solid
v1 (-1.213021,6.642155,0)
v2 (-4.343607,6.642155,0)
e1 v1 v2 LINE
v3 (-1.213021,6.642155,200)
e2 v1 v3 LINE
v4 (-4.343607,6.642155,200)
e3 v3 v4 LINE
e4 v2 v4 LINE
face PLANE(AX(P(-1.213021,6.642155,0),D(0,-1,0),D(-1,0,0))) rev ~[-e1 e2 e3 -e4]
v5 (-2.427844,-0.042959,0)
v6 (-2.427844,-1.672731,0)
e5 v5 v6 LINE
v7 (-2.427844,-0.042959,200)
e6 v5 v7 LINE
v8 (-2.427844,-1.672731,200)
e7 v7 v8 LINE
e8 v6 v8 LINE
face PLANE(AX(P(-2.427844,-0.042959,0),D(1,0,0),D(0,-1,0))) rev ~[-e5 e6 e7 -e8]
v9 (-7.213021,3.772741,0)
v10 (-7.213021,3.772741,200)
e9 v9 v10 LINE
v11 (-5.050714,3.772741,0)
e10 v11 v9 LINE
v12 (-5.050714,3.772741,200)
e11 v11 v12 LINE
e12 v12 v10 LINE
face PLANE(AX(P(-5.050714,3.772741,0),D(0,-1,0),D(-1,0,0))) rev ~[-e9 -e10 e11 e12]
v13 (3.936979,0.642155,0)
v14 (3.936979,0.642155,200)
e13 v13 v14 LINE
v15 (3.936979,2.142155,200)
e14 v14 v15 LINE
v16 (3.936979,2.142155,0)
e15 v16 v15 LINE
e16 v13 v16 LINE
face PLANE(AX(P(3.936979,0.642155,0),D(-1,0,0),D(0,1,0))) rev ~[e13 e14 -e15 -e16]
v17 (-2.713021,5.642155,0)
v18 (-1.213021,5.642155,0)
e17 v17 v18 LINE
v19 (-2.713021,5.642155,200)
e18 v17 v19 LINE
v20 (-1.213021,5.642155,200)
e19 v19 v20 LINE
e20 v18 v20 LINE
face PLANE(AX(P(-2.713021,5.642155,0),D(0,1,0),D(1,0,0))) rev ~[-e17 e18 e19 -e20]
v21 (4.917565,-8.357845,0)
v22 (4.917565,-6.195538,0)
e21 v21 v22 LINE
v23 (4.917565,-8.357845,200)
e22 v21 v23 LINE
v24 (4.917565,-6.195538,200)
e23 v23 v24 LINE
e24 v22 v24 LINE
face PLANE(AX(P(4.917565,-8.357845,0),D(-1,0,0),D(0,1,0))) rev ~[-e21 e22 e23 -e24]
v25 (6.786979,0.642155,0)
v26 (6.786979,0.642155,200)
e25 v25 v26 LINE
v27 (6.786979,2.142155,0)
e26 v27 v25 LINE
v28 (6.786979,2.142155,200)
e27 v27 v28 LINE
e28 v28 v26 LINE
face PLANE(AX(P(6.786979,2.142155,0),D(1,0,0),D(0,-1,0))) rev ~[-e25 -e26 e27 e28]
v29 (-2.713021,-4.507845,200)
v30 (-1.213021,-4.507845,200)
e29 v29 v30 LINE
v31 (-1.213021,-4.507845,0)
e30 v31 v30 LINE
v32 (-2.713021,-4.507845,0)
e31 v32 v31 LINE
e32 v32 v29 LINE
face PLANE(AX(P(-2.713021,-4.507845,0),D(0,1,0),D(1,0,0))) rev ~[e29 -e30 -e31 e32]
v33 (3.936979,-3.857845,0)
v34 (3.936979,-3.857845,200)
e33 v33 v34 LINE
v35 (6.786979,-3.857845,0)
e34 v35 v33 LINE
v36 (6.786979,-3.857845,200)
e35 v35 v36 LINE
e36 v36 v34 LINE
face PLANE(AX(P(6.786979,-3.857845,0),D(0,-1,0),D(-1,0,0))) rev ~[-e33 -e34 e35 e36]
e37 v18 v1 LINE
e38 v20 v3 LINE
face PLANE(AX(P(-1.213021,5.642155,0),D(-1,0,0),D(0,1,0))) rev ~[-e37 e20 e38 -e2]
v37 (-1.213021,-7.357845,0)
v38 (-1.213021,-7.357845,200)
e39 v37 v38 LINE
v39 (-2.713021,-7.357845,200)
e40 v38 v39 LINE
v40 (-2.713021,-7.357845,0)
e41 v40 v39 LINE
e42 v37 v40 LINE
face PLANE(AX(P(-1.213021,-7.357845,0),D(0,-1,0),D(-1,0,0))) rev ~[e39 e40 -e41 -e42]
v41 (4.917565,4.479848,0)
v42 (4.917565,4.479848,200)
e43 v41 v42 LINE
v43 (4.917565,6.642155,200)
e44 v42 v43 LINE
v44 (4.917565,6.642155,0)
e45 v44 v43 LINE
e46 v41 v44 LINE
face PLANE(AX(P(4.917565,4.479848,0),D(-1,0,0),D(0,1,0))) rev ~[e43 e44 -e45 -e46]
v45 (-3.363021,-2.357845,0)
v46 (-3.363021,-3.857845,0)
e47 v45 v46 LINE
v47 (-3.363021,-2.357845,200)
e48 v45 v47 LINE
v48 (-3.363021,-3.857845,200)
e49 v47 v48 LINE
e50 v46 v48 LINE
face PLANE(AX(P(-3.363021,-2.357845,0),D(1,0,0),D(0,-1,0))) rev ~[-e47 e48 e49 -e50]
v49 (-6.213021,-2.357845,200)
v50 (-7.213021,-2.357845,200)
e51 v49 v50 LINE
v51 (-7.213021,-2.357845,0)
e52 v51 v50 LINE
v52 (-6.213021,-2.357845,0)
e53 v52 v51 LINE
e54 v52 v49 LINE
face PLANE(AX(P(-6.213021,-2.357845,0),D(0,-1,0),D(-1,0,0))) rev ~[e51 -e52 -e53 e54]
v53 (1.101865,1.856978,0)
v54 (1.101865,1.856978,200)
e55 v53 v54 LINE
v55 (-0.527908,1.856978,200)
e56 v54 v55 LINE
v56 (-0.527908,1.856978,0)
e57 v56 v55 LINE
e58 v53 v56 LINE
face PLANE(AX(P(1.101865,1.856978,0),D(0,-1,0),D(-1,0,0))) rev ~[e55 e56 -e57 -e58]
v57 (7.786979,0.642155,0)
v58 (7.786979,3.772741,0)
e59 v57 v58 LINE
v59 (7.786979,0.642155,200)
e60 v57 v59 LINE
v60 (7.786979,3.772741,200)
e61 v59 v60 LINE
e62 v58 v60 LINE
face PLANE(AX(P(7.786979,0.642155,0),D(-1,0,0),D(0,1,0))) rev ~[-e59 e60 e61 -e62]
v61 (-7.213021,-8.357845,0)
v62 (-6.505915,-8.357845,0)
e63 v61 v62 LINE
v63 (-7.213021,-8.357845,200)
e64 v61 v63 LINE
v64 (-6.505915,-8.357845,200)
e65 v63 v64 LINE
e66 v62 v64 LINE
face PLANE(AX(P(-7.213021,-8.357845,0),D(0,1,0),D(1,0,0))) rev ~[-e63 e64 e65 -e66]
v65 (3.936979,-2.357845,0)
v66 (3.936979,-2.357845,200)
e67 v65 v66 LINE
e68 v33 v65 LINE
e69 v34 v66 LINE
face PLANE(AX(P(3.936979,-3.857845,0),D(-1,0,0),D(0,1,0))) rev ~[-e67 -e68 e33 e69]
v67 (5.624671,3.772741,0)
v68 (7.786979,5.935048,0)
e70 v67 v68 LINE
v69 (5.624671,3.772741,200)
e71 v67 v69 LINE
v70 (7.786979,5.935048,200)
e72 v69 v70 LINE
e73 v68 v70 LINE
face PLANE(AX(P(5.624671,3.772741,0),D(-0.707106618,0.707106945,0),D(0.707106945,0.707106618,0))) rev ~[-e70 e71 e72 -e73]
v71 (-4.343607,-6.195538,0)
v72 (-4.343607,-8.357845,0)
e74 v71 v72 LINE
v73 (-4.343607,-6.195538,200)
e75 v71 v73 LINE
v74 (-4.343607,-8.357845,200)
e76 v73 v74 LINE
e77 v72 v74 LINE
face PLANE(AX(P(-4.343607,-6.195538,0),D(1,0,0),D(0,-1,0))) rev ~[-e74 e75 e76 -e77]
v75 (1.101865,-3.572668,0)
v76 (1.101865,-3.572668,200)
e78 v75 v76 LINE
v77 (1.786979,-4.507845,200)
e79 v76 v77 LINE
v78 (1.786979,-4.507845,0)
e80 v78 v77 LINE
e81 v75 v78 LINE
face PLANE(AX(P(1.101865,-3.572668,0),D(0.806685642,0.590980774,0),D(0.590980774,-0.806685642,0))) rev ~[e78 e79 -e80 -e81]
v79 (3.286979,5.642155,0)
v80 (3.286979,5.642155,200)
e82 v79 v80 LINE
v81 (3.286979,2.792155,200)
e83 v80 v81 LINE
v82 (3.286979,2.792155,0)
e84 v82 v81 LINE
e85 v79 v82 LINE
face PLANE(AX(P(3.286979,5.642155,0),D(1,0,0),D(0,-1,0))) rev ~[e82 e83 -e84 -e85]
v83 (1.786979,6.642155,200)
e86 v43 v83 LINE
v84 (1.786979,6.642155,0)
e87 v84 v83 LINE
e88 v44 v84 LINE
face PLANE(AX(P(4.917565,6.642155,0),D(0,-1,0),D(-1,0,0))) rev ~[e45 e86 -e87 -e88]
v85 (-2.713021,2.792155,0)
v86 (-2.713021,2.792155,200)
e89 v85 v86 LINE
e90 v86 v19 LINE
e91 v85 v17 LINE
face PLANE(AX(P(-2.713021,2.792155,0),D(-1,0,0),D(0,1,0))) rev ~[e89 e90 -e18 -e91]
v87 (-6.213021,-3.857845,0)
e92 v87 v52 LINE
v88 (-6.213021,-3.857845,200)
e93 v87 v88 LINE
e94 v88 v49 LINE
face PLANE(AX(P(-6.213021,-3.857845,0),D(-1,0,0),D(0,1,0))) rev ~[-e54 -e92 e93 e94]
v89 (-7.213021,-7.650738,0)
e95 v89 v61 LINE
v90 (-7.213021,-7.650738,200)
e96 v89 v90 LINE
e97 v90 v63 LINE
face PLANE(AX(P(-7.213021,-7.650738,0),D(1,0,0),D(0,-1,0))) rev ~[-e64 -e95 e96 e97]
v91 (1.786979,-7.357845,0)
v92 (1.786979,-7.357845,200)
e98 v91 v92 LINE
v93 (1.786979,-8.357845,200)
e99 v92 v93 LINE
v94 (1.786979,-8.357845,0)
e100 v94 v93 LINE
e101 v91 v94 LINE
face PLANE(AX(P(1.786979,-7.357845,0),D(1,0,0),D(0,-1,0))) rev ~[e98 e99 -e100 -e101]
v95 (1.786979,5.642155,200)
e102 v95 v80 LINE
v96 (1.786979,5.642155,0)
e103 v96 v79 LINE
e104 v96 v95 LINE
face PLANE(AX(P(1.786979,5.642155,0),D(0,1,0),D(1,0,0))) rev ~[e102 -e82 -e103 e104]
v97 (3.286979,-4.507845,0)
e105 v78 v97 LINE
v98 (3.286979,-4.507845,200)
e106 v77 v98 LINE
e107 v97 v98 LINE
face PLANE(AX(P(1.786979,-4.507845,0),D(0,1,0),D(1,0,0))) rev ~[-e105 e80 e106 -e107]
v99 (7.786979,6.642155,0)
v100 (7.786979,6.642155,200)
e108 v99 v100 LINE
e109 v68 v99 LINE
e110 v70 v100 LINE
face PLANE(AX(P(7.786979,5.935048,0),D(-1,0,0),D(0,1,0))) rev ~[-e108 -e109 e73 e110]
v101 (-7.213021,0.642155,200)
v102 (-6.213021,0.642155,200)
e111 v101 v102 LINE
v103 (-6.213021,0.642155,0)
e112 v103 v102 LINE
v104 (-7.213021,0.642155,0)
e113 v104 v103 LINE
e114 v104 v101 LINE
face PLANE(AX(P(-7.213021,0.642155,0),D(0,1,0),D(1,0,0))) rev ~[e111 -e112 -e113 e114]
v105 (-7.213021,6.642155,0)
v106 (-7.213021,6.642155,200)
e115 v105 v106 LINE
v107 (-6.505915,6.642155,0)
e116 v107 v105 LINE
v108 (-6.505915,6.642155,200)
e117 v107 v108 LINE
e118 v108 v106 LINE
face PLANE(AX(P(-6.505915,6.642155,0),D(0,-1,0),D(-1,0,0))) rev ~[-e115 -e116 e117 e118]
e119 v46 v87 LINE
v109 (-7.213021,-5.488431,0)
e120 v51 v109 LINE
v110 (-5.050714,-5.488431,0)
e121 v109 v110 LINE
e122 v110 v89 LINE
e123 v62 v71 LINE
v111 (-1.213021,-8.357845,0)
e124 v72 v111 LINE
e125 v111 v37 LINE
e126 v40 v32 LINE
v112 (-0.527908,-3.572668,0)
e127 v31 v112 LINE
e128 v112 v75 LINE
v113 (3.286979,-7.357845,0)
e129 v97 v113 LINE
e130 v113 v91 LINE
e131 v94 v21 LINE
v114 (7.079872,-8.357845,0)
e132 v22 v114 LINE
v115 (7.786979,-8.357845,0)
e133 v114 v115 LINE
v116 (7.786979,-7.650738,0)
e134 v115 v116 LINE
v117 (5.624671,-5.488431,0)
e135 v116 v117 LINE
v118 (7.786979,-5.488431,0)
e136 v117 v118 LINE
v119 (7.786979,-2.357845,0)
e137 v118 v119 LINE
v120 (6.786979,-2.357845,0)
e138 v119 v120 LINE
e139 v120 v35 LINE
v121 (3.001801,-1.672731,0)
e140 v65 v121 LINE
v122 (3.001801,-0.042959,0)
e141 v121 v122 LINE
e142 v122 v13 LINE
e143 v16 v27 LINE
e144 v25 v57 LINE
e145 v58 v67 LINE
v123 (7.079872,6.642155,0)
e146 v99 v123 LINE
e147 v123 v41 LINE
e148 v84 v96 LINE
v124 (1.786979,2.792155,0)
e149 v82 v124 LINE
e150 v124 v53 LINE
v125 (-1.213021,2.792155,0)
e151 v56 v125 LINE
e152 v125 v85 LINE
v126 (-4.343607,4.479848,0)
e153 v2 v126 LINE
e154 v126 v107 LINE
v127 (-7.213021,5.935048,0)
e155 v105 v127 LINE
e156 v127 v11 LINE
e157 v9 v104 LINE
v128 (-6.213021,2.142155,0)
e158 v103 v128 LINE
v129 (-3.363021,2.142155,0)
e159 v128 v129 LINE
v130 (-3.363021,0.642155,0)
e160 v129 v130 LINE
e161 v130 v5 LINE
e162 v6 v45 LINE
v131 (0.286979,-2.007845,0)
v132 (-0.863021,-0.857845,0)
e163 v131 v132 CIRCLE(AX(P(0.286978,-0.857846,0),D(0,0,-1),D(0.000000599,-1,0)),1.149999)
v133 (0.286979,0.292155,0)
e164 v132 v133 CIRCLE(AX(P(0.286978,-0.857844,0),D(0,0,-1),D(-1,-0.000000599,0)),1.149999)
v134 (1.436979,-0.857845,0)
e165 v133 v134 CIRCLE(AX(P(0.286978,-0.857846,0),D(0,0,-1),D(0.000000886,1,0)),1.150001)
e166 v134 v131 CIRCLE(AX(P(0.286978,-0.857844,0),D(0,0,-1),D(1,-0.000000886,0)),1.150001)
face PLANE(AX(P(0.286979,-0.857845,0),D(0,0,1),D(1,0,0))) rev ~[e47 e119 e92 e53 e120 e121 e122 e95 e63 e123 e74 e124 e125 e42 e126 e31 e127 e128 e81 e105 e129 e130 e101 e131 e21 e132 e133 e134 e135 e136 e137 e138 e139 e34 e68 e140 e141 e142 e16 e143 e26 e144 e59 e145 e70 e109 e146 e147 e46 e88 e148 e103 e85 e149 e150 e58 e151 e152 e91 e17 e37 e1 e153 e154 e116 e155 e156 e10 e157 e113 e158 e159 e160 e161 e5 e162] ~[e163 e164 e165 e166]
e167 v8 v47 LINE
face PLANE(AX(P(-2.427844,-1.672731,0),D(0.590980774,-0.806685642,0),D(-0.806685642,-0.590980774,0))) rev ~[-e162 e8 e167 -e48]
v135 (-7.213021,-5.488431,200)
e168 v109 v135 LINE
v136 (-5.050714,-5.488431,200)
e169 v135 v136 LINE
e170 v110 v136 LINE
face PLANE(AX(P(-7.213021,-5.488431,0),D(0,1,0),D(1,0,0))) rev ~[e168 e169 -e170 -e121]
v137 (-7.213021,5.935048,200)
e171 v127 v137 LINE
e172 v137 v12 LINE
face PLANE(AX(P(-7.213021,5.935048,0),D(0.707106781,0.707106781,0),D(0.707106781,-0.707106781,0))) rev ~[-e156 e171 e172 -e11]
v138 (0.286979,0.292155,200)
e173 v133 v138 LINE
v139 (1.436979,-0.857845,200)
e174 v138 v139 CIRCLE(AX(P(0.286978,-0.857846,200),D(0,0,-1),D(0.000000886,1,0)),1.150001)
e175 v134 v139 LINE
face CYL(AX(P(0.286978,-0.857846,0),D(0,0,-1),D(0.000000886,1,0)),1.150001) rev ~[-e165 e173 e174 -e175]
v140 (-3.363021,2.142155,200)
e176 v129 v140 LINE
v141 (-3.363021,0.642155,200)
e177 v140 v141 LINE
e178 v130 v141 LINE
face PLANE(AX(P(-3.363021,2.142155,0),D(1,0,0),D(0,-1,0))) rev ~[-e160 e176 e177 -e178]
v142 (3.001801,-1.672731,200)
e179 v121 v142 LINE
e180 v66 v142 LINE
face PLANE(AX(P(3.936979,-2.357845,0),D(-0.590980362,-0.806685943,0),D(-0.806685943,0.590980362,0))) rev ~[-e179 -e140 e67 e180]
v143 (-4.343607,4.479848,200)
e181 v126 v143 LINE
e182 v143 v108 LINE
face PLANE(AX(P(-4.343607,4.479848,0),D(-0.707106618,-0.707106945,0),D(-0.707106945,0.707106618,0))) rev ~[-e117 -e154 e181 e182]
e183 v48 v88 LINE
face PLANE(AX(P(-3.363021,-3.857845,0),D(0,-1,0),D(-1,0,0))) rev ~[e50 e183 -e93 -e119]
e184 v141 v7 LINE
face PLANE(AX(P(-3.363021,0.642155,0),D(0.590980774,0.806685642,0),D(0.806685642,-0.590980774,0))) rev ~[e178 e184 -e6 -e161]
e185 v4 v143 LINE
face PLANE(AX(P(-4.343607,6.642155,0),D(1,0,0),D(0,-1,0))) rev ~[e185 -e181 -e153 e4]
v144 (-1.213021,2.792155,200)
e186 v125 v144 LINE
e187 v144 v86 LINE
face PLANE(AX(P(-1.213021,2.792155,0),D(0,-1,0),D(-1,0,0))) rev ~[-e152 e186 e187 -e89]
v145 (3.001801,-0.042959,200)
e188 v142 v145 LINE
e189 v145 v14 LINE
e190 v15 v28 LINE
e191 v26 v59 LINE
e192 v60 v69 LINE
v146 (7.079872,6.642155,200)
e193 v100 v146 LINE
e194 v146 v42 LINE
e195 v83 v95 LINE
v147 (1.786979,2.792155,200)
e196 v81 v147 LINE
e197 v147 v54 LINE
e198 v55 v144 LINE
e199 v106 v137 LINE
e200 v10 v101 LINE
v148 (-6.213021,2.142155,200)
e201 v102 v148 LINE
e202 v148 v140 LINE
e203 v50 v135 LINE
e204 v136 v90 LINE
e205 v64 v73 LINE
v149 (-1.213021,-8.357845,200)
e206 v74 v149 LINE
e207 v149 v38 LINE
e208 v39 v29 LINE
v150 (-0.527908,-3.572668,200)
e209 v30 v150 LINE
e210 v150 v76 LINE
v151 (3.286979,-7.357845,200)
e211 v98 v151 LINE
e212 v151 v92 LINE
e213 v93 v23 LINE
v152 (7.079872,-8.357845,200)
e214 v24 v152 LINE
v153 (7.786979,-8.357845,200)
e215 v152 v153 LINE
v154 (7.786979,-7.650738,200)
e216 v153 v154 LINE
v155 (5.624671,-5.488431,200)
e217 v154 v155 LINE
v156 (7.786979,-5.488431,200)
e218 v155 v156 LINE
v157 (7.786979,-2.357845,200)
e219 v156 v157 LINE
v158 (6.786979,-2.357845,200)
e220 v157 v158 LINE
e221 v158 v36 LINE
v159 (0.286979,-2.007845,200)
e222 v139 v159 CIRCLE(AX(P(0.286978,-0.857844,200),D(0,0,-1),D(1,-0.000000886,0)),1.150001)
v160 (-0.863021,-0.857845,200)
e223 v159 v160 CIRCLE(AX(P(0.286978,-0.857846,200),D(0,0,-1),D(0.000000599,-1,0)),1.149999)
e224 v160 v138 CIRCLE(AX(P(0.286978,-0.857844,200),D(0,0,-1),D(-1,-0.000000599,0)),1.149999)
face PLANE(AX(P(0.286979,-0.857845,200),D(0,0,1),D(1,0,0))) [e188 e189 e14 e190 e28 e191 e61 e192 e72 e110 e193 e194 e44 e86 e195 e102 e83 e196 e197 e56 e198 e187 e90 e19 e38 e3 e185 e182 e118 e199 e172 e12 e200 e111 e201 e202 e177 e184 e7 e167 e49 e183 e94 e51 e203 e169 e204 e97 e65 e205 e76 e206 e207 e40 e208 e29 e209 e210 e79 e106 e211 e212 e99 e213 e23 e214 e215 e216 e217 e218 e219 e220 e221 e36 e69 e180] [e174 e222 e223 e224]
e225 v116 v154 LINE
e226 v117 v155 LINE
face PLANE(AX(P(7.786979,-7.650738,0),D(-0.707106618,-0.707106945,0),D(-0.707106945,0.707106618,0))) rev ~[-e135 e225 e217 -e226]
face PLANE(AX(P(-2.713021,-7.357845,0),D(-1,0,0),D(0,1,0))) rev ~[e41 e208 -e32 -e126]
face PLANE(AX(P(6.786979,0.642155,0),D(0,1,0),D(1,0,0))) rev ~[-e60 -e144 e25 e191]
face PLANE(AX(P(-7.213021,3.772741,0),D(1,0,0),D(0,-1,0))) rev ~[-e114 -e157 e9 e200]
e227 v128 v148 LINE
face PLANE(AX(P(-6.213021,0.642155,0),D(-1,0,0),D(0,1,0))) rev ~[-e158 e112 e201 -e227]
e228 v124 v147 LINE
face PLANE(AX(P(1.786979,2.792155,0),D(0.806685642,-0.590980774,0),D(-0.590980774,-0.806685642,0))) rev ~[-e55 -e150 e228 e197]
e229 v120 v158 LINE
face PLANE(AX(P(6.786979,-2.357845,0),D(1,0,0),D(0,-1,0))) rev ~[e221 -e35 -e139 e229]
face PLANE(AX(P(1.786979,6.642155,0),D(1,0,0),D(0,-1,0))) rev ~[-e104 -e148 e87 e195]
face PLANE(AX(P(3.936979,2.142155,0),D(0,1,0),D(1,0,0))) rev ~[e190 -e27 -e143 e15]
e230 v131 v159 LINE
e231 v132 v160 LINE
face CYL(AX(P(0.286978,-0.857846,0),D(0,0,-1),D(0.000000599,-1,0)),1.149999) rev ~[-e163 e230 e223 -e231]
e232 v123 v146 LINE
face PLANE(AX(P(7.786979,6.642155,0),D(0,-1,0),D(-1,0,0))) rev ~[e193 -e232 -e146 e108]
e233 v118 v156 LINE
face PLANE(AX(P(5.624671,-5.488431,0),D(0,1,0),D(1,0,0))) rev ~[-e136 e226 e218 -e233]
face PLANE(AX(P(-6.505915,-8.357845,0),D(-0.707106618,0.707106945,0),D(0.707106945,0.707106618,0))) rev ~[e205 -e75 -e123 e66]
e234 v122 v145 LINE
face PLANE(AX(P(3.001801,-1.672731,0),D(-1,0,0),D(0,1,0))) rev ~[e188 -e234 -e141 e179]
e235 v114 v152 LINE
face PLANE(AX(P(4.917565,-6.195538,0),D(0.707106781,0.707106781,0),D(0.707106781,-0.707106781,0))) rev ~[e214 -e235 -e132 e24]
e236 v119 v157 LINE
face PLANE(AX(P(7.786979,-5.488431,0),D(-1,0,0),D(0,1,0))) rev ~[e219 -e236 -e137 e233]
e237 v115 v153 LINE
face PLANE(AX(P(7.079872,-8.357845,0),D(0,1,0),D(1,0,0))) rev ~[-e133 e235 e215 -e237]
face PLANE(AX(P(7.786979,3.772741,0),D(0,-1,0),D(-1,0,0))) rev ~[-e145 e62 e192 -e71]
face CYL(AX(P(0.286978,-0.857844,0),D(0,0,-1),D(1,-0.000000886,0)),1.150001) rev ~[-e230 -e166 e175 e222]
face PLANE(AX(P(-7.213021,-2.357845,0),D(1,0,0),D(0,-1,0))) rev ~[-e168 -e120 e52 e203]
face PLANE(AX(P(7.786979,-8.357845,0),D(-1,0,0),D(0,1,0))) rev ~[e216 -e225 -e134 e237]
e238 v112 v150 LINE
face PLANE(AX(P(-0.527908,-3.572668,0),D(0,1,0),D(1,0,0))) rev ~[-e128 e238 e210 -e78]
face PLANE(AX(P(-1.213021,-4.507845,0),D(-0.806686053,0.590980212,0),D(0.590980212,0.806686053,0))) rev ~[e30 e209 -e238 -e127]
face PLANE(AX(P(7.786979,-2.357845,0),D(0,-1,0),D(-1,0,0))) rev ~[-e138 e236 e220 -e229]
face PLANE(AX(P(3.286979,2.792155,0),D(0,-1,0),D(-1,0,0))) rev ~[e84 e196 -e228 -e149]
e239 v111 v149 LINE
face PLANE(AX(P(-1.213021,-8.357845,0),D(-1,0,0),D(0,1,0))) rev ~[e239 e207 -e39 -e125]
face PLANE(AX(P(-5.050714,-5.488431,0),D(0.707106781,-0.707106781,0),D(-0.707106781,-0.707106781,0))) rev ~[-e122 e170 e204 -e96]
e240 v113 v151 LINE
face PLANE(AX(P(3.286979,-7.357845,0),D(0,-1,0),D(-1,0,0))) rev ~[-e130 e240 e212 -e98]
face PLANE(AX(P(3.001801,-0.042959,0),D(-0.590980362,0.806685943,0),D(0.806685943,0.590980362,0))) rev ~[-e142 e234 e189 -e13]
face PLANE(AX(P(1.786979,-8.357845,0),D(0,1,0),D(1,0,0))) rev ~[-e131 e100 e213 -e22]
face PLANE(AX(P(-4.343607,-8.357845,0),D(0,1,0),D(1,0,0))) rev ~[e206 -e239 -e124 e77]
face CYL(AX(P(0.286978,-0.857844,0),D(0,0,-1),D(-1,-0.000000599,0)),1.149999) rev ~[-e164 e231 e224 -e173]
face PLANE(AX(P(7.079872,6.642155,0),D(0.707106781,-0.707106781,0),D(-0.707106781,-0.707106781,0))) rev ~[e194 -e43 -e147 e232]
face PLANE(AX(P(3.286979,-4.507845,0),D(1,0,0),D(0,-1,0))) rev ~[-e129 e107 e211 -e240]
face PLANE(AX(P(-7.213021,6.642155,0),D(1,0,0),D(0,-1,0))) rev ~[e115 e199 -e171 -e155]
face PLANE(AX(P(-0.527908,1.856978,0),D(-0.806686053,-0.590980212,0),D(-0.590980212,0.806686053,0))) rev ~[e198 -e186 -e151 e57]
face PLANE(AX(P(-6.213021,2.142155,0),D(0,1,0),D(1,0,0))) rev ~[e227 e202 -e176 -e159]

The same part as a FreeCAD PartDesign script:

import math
import FreeCAD as App
import Part
import Sketcher

V = App.Vector

doc = App.newDocument("Part")
params = doc.addObject("Spreadsheet::Sheet", "Params")
for row, (alias, value) in enumerate([
    ("sketch1_width", "1 mm"),
    ("sketch1_radius", "1.149999 mm"),
    ("sketch1_width2", "1.5 mm"),
    ("sketch1_width3", "2.85 mm"),
    ("pad1_length", "200 mm"),
], start=1):
    params.set(f"A{row}", alias)
    params.set(f"B{row}", "=" + value)
    params.setAlias(f"B{row}", alias)

body = doc.addObject("PartDesign::Body", "Body")

# Sketch on XY plane
sketch1 = body.newObject("Sketcher::SketchObject", "Sketch")
sketch1.AttachmentSupport = (doc.getObject("XY_Plane"), [""])
sketch1.MapMode = "FlatFace"
sketch1.addGeometry(Part.LineSegment(V(-7.213021, 3.772741, 0), V(-7.213021, 0.642155, 0)), False)
sketch1.addGeometry(Part.LineSegment(V(-7.213021, 0.642155, 0), V(-6.213021, 0.642155, 0)), False)
sketch1.addGeometry(Part.LineSegment(V(-6.213021, 0.642155, 0), V(-6.213021, 2.142155, 0)), False)
sketch1.addGeometry(Part.LineSegment(V(-6.213021, 2.142155, 0), V(-3.363021, 2.142155, 0)), False)
sketch1.addGeometry(Part.LineSegment(V(-3.363021, 2.142155, 0), V(-3.363021, 0.642155, 0)), False)
sketch1.addGeometry(Part.LineSegment(V(-3.363021, 0.642155, 0), V(-2.427844, -0.042959, 0)), False)
sketch1.addGeometry(Part.LineSegment(V(-2.427844, -0.042959, 0), V(-2.427844, -1.672731, 0)), False)
sketch1.addGeometry(Part.LineSegment(V(-2.427844, -1.672731, 0), V(-3.363021, -2.357845, 0)), False)
sketch1.addGeometry(Part.LineSegment(V(-3.363021, -2.357845, 0), V(-3.363021, -3.857845, 0)), False)
sketch1.addGeometry(Part.LineSegment(V(-3.363021, -3.857845, 0), V(-6.213021, -3.857845, 0)), False)
sketch1.addGeometry(Part.LineSegment(V(-6.213021, -3.857845, 0), V(-6.213021, -2.357845, 0)), False)
sketch1.addGeometry(Part.LineSegment(V(-6.213021, -2.357845, 0), V(-7.213021, -2.357845, 0)), False)
sketch1.addGeometry(Part.LineSegment(V(-7.213021, -2.357845, 0), V(-7.213021, -5.488431, 0)), False)
sketch1.addGeometry(Part.LineSegment(V(-7.213021, -5.488431, 0), V(-5.050714, -5.488431, 0)), False)
sketch1.addGeometry(Part.LineSegment(V(-5.050714, -5.488431, 0), V(-7.213021, -7.650738, 0)), False)
sketch1.addGeometry(Part.LineSegment(V(-7.213021, -7.650738, 0), V(-7.213021, -8.357845, 0)), False)
sketch1.addGeometry(Part.LineSegment(V(-7.213021, -8.357845, 0), V(-6.505915, -8.357845, 0)), False)
sketch1.addGeometry(Part.LineSegment(V(-6.505915, -8.357845, 0), V(-4.343607, -6.195538, 0)), False)
sketch1.addGeometry(Part.LineSegment(V(-4.343607, -6.195538, 0), V(-4.343607, -8.357845, 0)), False)
sketch1.addGeometry(Part.LineSegment(V(-4.343607, -8.357845, 0), V(-1.213021, -8.357845, 0)), False)
sketch1.addGeometry(Part.LineSegment(V(-1.213021, -8.357845, 0), V(-1.213021, -7.357845, 0)), False)
sketch1.addGeometry(Part.LineSegment(V(-1.213021, -7.357845, 0), V(-2.713021, -7.357845, 0)), False)
sketch1.addGeometry(Part.LineSegment(V(-2.713021, -7.357845, 0), V(-2.713021, -4.507845, 0)), False)
sketch1.addGeometry(Part.LineSegment(V(-2.713021, -4.507845, 0), V(-1.213021, -4.507845, 0)), False)
sketch1.addGeometry(Part.LineSegment(V(-1.213021, -4.507845, 0), V(-0.527908, -3.572668, 0)), False)
sketch1.addGeometry(Part.LineSegment(V(-0.527908, -3.572668, 0), V(1.101865, -3.572668, 0)), False)
sketch1.addGeometry(Part.LineSegment(V(1.101865, -3.572668, 0), V(1.786979, -4.507845, 0)), False)
sketch1.addGeometry(Part.LineSegment(V(1.786979, -4.507845, 0), V(3.286979, -4.507845, 0)), False)
sketch1.addGeometry(Part.LineSegment(V(3.286979, -4.507845, 0), V(3.286979, -7.357845, 0)), False)
sketch1.addGeometry(Part.LineSegment(V(3.286979, -7.357845, 0), V(1.786979, -7.357845, 0)), False)
sketch1.addGeometry(Part.LineSegment(V(1.786979, -7.357845, 0), V(1.786979, -8.357845, 0)), False)
sketch1.addGeometry(Part.LineSegment(V(1.786979, -8.357845, 0), V(4.917565, -8.357845, 0)), False)
sketch1.addGeometry(Part.LineSegment(V(4.917565, -8.357845, 0), V(4.917565, -6.195538, 0)), False)
sketch1.addGeometry(Part.LineSegment(V(4.917565, -6.195538, 0), V(7.079872, -8.357845, 0)), False)
sketch1.addGeometry(Part.LineSegment(V(7.079872, -8.357845, 0), V(7.786979, -8.357845, 0)), False)
sketch1.addGeometry(Part.LineSegment(V(7.786979, -8.357845, 0), V(7.786979, -7.650738, 0)), False)
sketch1.addGeometry(Part.LineSegment(V(7.786979, -7.650738, 0), V(5.624671, -5.488431, 0)), False)
sketch1.addGeometry(Part.LineSegment(V(5.624671, -5.488431, 0), V(7.786979, -5.488431, 0)), False)
sketch1.addGeometry(Part.LineSegment(V(7.786979, -5.488431, 0), V(7.786979, -2.357845, 0)), False)
sketch1.addGeometry(Part.LineSegment(V(7.786979, -2.357845, 0), V(6.786979, -2.357845, 0)), False)
sketch1.addGeometry(Part.LineSegment(V(6.786979, -2.357845, 0), V(6.786979, -3.857845, 0)), False)
sketch1.addGeometry(Part.LineSegment(V(6.786979, -3.857845, 0), V(3.936979, -3.857845, 0)), False)
sketch1.addGeometry(Part.LineSegment(V(3.936979, -3.857845, 0), V(3.936979, -2.357845, 0)), False)
sketch1.addGeometry(Part.LineSegment(V(3.936979, -2.357845, 0), V(3.001801, -1.672731, 0)), False)
sketch1.addGeometry(Part.LineSegment(V(3.001801, -1.672731, 0), V(3.001801, -0.042959, 0)), False)
sketch1.addGeometry(Part.LineSegment(V(3.001801, -0.042959, 0), V(3.936979, 0.642155, 0)), False)
sketch1.addGeometry(Part.LineSegment(V(3.936979, 0.642155, 0), V(3.936979, 2.142155, 0)), False)
sketch1.addGeometry(Part.LineSegment(V(3.936979, 2.142155, 0), V(6.786979, 2.142155, 0)), False)
sketch1.addGeometry(Part.LineSegment(V(6.786979, 2.142155, 0), V(6.786979, 0.642155, 0)), False)
sketch1.addGeometry(Part.LineSegment(V(6.786979, 0.642155, 0), V(7.786979, 0.642155, 0)), False)
sketch1.addGeometry(Part.LineSegment(V(7.786979, 0.642155, 0), V(7.786979, 3.772741, 0)), False)
sketch1.addGeometry(Part.LineSegment(V(7.786979, 3.772741, 0), V(5.624671, 3.772741, 0)), False)
sketch1.addGeometry(Part.LineSegment(V(5.624671, 3.772741, 0), V(7.786979, 5.935048, 0)), False)
sketch1.addGeometry(Part.LineSegment(V(7.786979, 5.935048, 0), V(7.786979, 6.642155, 0)), False)
sketch1.addGeometry(Part.LineSegment(V(7.786979, 6.642155, 0), V(7.079872, 6.642155, 0)), False)
sketch1.addGeometry(Part.LineSegment(V(7.079872, 6.642155, 0), V(4.917565, 4.479848, 0)), False)
sketch1.addGeometry(Part.LineSegment(V(4.917565, 4.479848, 0), V(4.917565, 6.642155, 0)), False)
sketch1.addGeometry(Part.LineSegment(V(4.917565, 6.642155, 0), V(1.786979, 6.642155, 0)), False)
sketch1.addGeometry(Part.LineSegment(V(1.786979, 6.642155, 0), V(1.786979, 5.642155, 0)), False)
sketch1.addGeometry(Part.LineSegment(V(1.786979, 5.642155, 0), V(3.286979, 5.642155, 0)), False)
sketch1.addGeometry(Part.LineSegment(V(3.286979, 5.642155, 0), V(3.286979, 2.792155, 0)), False)
sketch1.addGeometry(Part.LineSegment(V(3.286979, 2.792155, 0), V(1.786979, 2.792155, 0)), False)
sketch1.addGeometry(Part.LineSegment(V(1.786979, 2.792155, 0), V(1.101865, 1.856978, 0)), False)
sketch1.addGeometry(Part.LineSegment(V(1.101865, 1.856978, 0), V(-0.527908, 1.856978, 0)), False)
sketch1.addGeometry(Part.LineSegment(V(-0.527908, 1.856978, 0), V(-1.213021, 2.792155, 0)), False)
sketch1.addGeometry(Part.LineSegment(V(-1.213021, 2.792155, 0), V(-2.713021, 2.792155, 0)), False)
sketch1.addGeometry(Part.LineSegment(V(-2.713021, 2.792155, 0), V(-2.713021, 5.642155, 0)), False)
sketch1.addGeometry(Part.LineSegment(V(-2.713021, 5.642155, 0), V(-1.213021, 5.642155, 0)), False)
sketch1.addGeometry(Part.LineSegment(V(-1.213021, 5.642155, 0), V(-1.213021, 6.642155, 0)), False)
sketch1.addGeometry(Part.LineSegment(V(-1.213021, 6.642155, 0), V(-4.343607, 6.642155, 0)), False)
sketch1.addGeometry(Part.LineSegment(V(-4.343607, 6.642155, 0), V(-4.343607, 4.479848, 0)), False)
sketch1.addGeometry(Part.LineSegment(V(-4.343607, 4.479848, 0), V(-6.505915, 6.642155, 0)), False)
sketch1.addGeometry(Part.LineSegment(V(-6.505915, 6.642155, 0), V(-7.213021, 6.642155, 0)), False)
sketch1.addGeometry(Part.LineSegment(V(-7.213021, 6.642155, 0), V(-7.213021, 5.935048, 0)), False)
sketch1.addGeometry(Part.LineSegment(V(-7.213021, 5.935048, 0), V(-5.050714, 3.772741, 0)), False)
sketch1.addGeometry(Part.LineSegment(V(-5.050714, 3.772741, 0), V(-7.213021, 3.772741, 0)), False)
sketch1.addGeometry(Part.ArcOfCircle(Part.Circle(V(0.286978, -0.857846, 0), V(0, 0, 1), 1.149999), math.radians(179.999966), math.radians(270.000034)), False)
sketch1.addGeometry(Part.ArcOfCircle(Part.Circle(V(0.286978, -0.857844, 0), V(0, 0, 1), 1.149999), math.radians(89.999966), math.radians(180.000034)), False)
sketch1.addGeometry(Part.ArcOfCircle(Part.Circle(V(0.286978, -0.857846, 0), V(0, 0, 1), 1.150001), math.radians(0.000051), math.radians(89.999949)), False)
sketch1.addGeometry(Part.ArcOfCircle(Part.Circle(V(0.286978, -0.857844, 0), V(0, 0, 1), 1.150001), math.radians(-89.999949), math.radians(-0.000051)), False)
sketch1.addConstraint(Sketcher.Constraint("Coincident", 0, 2, 1, 1))
sketch1.addConstraint(Sketcher.Constraint("Coincident", 1, 2, 2, 1))
sketch1.addConstraint(Sketcher.Constraint("Coincident", 2, 2, 3, 1))
sketch1.addConstraint(Sketcher.Constraint("Coincident", 3, 2, 4, 1))
sketch1.addConstraint(Sketcher.Constraint("Coincident", 4, 2, 5, 1))
sketch1.addConstraint(Sketcher.Constraint("Coincident", 5, 2, 6, 1))
sketch1.addConstraint(Sketcher.Constraint("Coincident", 6, 2, 7, 1))
sketch1.addConstraint(Sketcher.Constraint("Coincident", 7, 2, 8, 1))
sketch1.addConstraint(Sketcher.Constraint("Coincident", 8, 2, 9, 1))
sketch1.addConstraint(Sketcher.Constraint("Coincident", 9, 2, 10, 1))
sketch1.addConstraint(Sketcher.Constraint("Coincident", 10, 2, 11, 1))
sketch1.addConstraint(Sketcher.Constraint("Coincident", 11, 2, 12, 1))
sketch1.addConstraint(Sketcher.Constraint("Coincident", 12, 2, 13, 1))
sketch1.addConstraint(Sketcher.Constraint("Coincident", 13, 2, 14, 1))
sketch1.addConstraint(Sketcher.Constraint("Coincident", 14, 2, 15, 1))
sketch1.addConstraint(Sketcher.Constraint("Coincident", 15, 2, 16, 1))
sketch1.addConstraint(Sketcher.Constraint("Coincident", 16, 2, 17, 1))
sketch1.addConstraint(Sketcher.Constraint("Coincident", 17, 2, 18, 1))
sketch1.addConstraint(Sketcher.Constraint("Coincident", 18, 2, 19, 1))
sketch1.addConstraint(Sketcher.Constraint("Coincident", 19, 2, 20, 1))
sketch1.addConstraint(Sketcher.Constraint("Coincident", 20, 2, 21, 1))
sketch1.addConstraint(Sketcher.Constraint("Coincident", 21, 2, 22, 1))
sketch1.addConstraint(Sketcher.Constraint("Coincident", 22, 2, 23, 1))
sketch1.addConstraint(Sketcher.Constraint("Coincident", 23, 2, 24, 1))
sketch1.addConstraint(Sketcher.Constraint("Coincident", 24, 2, 25, 1))
sketch1.addConstraint(Sketcher.Constraint("Coincident", 25, 2, 26, 1))
sketch1.addConstraint(Sketcher.Constraint("Coincident", 26, 2, 27, 1))
sketch1.addConstraint(Sketcher.Constraint("Coincident", 27, 2, 28, 1))
sketch1.addConstraint(Sketcher.Constraint("Coincident", 28, 2, 29, 1))
sketch1.addConstraint(Sketcher.Constraint("Coincident", 29, 2, 30, 1))
sketch1.addConstraint(Sketcher.Constraint("Coincident", 30, 2, 31, 1))
sketch1.addConstraint(Sketcher.Constraint("Coincident", 31, 2, 32, 1))
sketch1.addConstraint(Sketcher.Constraint("Coincident", 32, 2, 33, 1))
sketch1.addConstraint(Sketcher.Constraint("Coincident", 33, 2, 34, 1))
sketch1.addConstraint(Sketcher.Constraint("Coincident", 34, 2, 35, 1))
sketch1.addConstraint(Sketcher.Constraint("Coincident", 35, 2, 36, 1))
sketch1.addConstraint(Sketcher.Constraint("Coincident", 36, 2, 37, 1))
sketch1.addConstraint(Sketcher.Constraint("Coincident", 37, 2, 38, 1))
sketch1.addConstraint(Sketcher.Constraint("Coincident", 38, 2, 39, 1))
sketch1.addConstraint(Sketcher.Constraint("Coincident", 39, 2, 40, 1))
sketch1.addConstraint(Sketcher.Constraint("Coincident", 40, 2, 41, 1))
sketch1.addConstraint(Sketcher.Constraint("Coincident", 41, 2, 42, 1))
sketch1.addConstraint(Sketcher.Constraint("Coincident", 42, 2, 43, 1))
sketch1.addConstraint(Sketcher.Constraint("Coincident", 43, 2, 44, 1))
sketch1.addConstraint(Sketcher.Constraint("Coincident", 44, 2, 45, 1))
sketch1.addConstraint(Sketcher.Constraint("Coincident", 45, 2, 46, 1))
sketch1.addConstraint(Sketcher.Constraint("Coincident", 46, 2, 47, 1))
sketch1.addConstraint(Sketcher.Constraint("Coincident", 47, 2, 48, 1))
sketch1.addConstraint(Sketcher.Constraint("Coincident", 48, 2, 49, 1))
sketch1.addConstraint(Sketcher.Constraint("Coincident", 49, 2, 50, 1))
sketch1.addConstraint(Sketcher.Constraint("Coincident", 50, 2, 51, 1))
sketch1.addConstraint(Sketcher.Constraint("Coincident", 51, 2, 52, 1))
sketch1.addConstraint(Sketcher.Constraint("Coincident", 52, 2, 53, 1))
sketch1.addConstraint(Sketcher.Constraint("Coincident", 53, 2, 54, 1))
sketch1.addConstraint(Sketcher.Constraint("Coincident", 54, 2, 55, 1))
sketch1.addConstraint(Sketcher.Constraint("Coincident", 55, 2, 56, 1))
sketch1.addConstraint(Sketcher.Constraint("Coincident", 56, 2, 57, 1))
sketch1.addConstraint(Sketcher.Constraint("Coincident", 57, 2, 58, 1))
sketch1.addConstraint(Sketcher.Constraint("Coincident", 58, 2, 59, 1))
sketch1.addConstraint(Sketcher.Constraint("Coincident", 59, 2, 60, 1))
sketch1.addConstraint(Sketcher.Constraint("Coincident", 60, 2, 61, 1))
sketch1.addConstraint(Sketcher.Constraint("Coincident", 61, 2, 62, 1))
sketch1.addConstraint(Sketcher.Constraint("Coincident", 62, 2, 63, 1))
sketch1.addConstraint(Sketcher.Constraint("Coincident", 63, 2, 64, 1))
sketch1.addConstraint(Sketcher.Constraint("Coincident", 64, 2, 65, 1))
sketch1.addConstraint(Sketcher.Constraint("Coincident", 65, 2, 66, 1))
sketch1.addConstraint(Sketcher.Constraint("Coincident", 66, 2, 67, 1))
sketch1.addConstraint(Sketcher.Constraint("Coincident", 67, 2, 68, 1))
sketch1.addConstraint(Sketcher.Constraint("Coincident", 68, 2, 69, 1))
sketch1.addConstraint(Sketcher.Constraint("Coincident", 69, 2, 70, 1))
sketch1.addConstraint(Sketcher.Constraint("Coincident", 70, 2, 71, 1))
sketch1.addConstraint(Sketcher.Constraint("Coincident", 71, 2, 72, 1))
sketch1.addConstraint(Sketcher.Constraint("Coincident", 72, 2, 73, 1))
sketch1.addConstraint(Sketcher.Constraint("Coincident", 73, 2, 74, 1))
sketch1.addConstraint(Sketcher.Constraint("Coincident", 74, 2, 75, 1))
sketch1.addConstraint(Sketcher.Constraint("Coincident", 75, 2, 0, 1))
sketch1.addConstraint(Sketcher.Constraint("Tangent", 76, 1, 77, 2))
sketch1.addConstraint(Sketcher.Constraint("Tangent", 77, 1, 78, 2))
sketch1.addConstraint(Sketcher.Constraint("Tangent", 78, 1, 79, 2))
sketch1.addConstraint(Sketcher.Constraint("Tangent", 79, 1, 76, 2))
sketch1.addConstraint(Sketcher.Constraint("Vertical", 0))
sketch1.addConstraint(Sketcher.Constraint("Horizontal", 1))
sketch1.addConstraint(Sketcher.Constraint("Vertical", 2))
sketch1.addConstraint(Sketcher.Constraint("Horizontal", 3))
sketch1.addConstraint(Sketcher.Constraint("Vertical", 4))
sketch1.addConstraint(Sketcher.Constraint("Vertical", 6))
sketch1.addConstraint(Sketcher.Constraint("Vertical", 8))
sketch1.addConstraint(Sketcher.Constraint("Horizontal", 9))
sketch1.addConstraint(Sketcher.Constraint("Vertical", 10))
sketch1.addConstraint(Sketcher.Constraint("Horizontal", 11))
sketch1.addConstraint(Sketcher.Constraint("Vertical", 12))
sketch1.addConstraint(Sketcher.Constraint("Horizontal", 13))
sketch1.addConstraint(Sketcher.Constraint("Vertical", 15))
sketch1.addConstraint(Sketcher.Constraint("Horizontal", 16))
sketch1.addConstraint(Sketcher.Constraint("Vertical", 18))
sketch1.addConstraint(Sketcher.Constraint("Horizontal", 19))
sketch1.addConstraint(Sketcher.Constraint("Vertical", 20))
sketch1.addConstraint(Sketcher.Constraint("Horizontal", 21))
sketch1.addConstraint(Sketcher.Constraint("Vertical", 22))
sketch1.addConstraint(Sketcher.Constraint("Horizontal", 23))
sketch1.addConstraint(Sketcher.Constraint("Horizontal", 25))
sketch1.addConstraint(Sketcher.Constraint("Horizontal", 27))
sketch1.addConstraint(Sketcher.Constraint("Vertical", 28))
sketch1.addConstraint(Sketcher.Constraint("Horizontal", 29))
sketch1.addConstraint(Sketcher.Constraint("Vertical", 30))
sketch1.addConstraint(Sketcher.Constraint("Horizontal", 31))
sketch1.addConstraint(Sketcher.Constraint("Vertical", 32))
sketch1.addConstraint(Sketcher.Constraint("Horizontal", 34))
sketch1.addConstraint(Sketcher.Constraint("Vertical", 35))
sketch1.addConstraint(Sketcher.Constraint("Horizontal", 37))
sketch1.addConstraint(Sketcher.Constraint("Vertical", 38))
sketch1.addConstraint(Sketcher.Constraint("Horizontal", 39))
sketch1.addConstraint(Sketcher.Constraint("Vertical", 40))
sketch1.addConstraint(Sketcher.Constraint("Horizontal", 41))
sketch1.addConstraint(Sketcher.Constraint("Vertical", 42))
sketch1.addConstraint(Sketcher.Constraint("Vertical", 44))
sketch1.addConstraint(Sketcher.Constraint("Vertical", 46))
sketch1.addConstraint(Sketcher.Constraint("Horizontal", 47))
sketch1.addConstraint(Sketcher.Constraint("Vertical", 48))
sketch1.addConstraint(Sketcher.Constraint("Horizontal", 49))
sketch1.addConstraint(Sketcher.Constraint("Vertical", 50))
sketch1.addConstraint(Sketcher.Constraint("Horizontal", 51))
sketch1.addConstraint(Sketcher.Constraint("Vertical", 53))
sketch1.addConstraint(Sketcher.Constraint("Horizontal", 54))
sketch1.addConstraint(Sketcher.Constraint("Vertical", 56))
sketch1.addConstraint(Sketcher.Constraint("Horizontal", 57))
sketch1.addConstraint(Sketcher.Constraint("Vertical", 58))
sketch1.addConstraint(Sketcher.Constraint("Horizontal", 59))
sketch1.addConstraint(Sketcher.Constraint("Vertical", 60))
sketch1.addConstraint(Sketcher.Constraint("Horizontal", 61))
sketch1.addConstraint(Sketcher.Constraint("Horizontal", 63))
sketch1.addConstraint(Sketcher.Constraint("Horizontal", 65))
sketch1.addConstraint(Sketcher.Constraint("Vertical", 66))
sketch1.addConstraint(Sketcher.Constraint("Horizontal", 67))
sketch1.addConstraint(Sketcher.Constraint("Vertical", 68))
sketch1.addConstraint(Sketcher.Constraint("Horizontal", 69))
sketch1.addConstraint(Sketcher.Constraint("Vertical", 70))
sketch1.addConstraint(Sketcher.Constraint("Horizontal", 72))
sketch1.addConstraint(Sketcher.Constraint("Vertical", 73))
sketch1.addConstraint(Sketcher.Constraint("Horizontal", 75))
sketch1.addConstraint(Sketcher.Constraint("Equal", 76, 77))
sketch1.addConstraint(Sketcher.Constraint("Parallel", 14, 17))
sketch1.addConstraint(Sketcher.Constraint("Perpendicular", 5, 24))
sketch1.addConstraint(Sketcher.Constraint("Perpendicular", 7, 26))
sketch1.addConstraint(Sketcher.Constraint("Perpendicular", 17, 33))
sketch1.addConstraint(Sketcher.Constraint("Parallel", 33, 36))
sketch1.addConstraint(Sketcher.Constraint("Perpendicular", 24, 43))
sketch1.addConstraint(Sketcher.Constraint("Perpendicular", 26, 45))
sketch1.addConstraint(Sketcher.Constraint("Perpendicular", 36, 52))
sketch1.addConstraint(Sketcher.Constraint("Parallel", 52, 55))
sketch1.addConstraint(Sketcher.Constraint("Perpendicular", 43, 62))
sketch1.addConstraint(Sketcher.Constraint("Perpendicular", 45, 64))
sketch1.addConstraint(Sketcher.Constraint("Perpendicular", 55, 71))
sketch1.addConstraint(Sketcher.Constraint("Parallel", 71, 74))
sketch1.addConstraint(Sketcher.Constraint("Horizontal", 1, 2, 4, 2))
sketch1.addConstraint(Sketcher.Constraint("Horizontal", 7, 2, 10, 2))
sketch1.addConstraint(Sketcher.Constraint("Horizontal", 16, 2, 18, 2))
sketch1.addConstraint(Sketcher.Constraint("Horizontal", 23, 2, 26, 2))
sketch1.addConstraint(Sketcher.Constraint("Horizontal", 21, 2, 28, 2))
sketch1.addConstraint(Sketcher.Constraint("Horizontal", 19, 2, 30, 2))
sketch1.addConstraint(Sketcher.Constraint("Horizontal", 17, 2, 32, 2))
sketch1.addConstraint(Sketcher.Constraint("Horizontal", 31, 2, 33, 2))
sketch1.addConstraint(Sketcher.Constraint("Horizontal", 14, 2, 35, 2))
sketch1.addConstraint(Sketcher.Constraint("Horizontal", 13, 2, 36, 2))
sketch1.addConstraint(Sketcher.Constraint("Horizontal", 11, 2, 38, 2))
sketch1.addConstraint(Sketcher.Constraint("Horizontal", 9, 2, 40, 2))
sketch1.addConstraint(Sketcher.Constraint("Horizontal", 39, 2, 42, 2))
sketch1.addConstraint(Sketcher.Constraint("Horizontal", 6, 2, 43, 2))
sketch1.addConstraint(Sketcher.Constraint("Horizontal", 5, 2, 44, 2))
sketch1.addConstraint(Sketcher.Constraint("Horizontal", 4, 2, 45, 2))
sketch1.addConstraint(Sketcher.Constraint("Horizontal", 3, 2, 46, 2))
sketch1.addConstraint(Sketcher.Constraint("Horizontal", 45, 2, 48, 2))
sketch1.addConstraint(Sketcher.Constraint("Horizontal", 54, 2, 56, 2))
sketch1.addConstraint(Sketcher.Constraint("Horizontal", 61, 2, 64, 2))
sketch1.addConstraint(Sketcher.Constraint("Horizontal", 59, 2, 66, 2))
sketch1.addConstraint(Sketcher.Constraint("Horizontal", 57, 2, 68, 2))
sketch1.addConstraint(Sketcher.Constraint("Horizontal", 55, 2, 70, 2))
sketch1.addConstraint(Sketcher.Constraint("Horizontal", 69, 2, 71, 2))
sketch1.addConstraint(Sketcher.Constraint("Horizontal", 52, 2, 73, 2))
sketch1.addConstraint(Sketcher.Constraint("Horizontal", 51, 2, 74, 2))
sketch1.addConstraint(Sketcher.Constraint("Horizontal", 79, 3, 76, 1))
sketch1.addConstraint(Sketcher.Constraint("Horizontal", 76, 1, 78, 1))
sketch1.addConstraint(Sketcher.Constraint("Vertical", 4, 2, 7, 2))
sketch1.addConstraint(Sketcher.Constraint("Vertical", 2, 2, 9, 2))
sketch1.addConstraint(Sketcher.Constraint("Vertical", 0, 2, 11, 2))
sketch1.addConstraint(Sketcher.Constraint("Vertical", 12, 2, 14, 2))
sketch1.addConstraint(Sketcher.Constraint("Vertical", 20, 2, 23, 2))
sketch1.addConstraint(Sketcher.Constraint("Vertical", 26, 2, 29, 2))
sketch1.addConstraint(Sketcher.Constraint("Vertical", 35, 2, 37, 2))
sketch1.addConstraint(Sketcher.Constraint("Vertical", 42, 2, 45, 2))
sketch1.addConstraint(Sketcher.Constraint("Vertical", 40, 2, 47, 2))
sketch1.addConstraint(Sketcher.Constraint("Vertical", 38, 2, 49, 2))
sketch1.addConstraint(Sketcher.Constraint("Vertical", 36, 2, 51, 2))
sketch1.addConstraint(Sketcher.Constraint("Vertical", 50, 2, 52, 2))
sketch1.addConstraint(Sketcher.Constraint("Vertical", 33, 2, 54, 2))
sketch1.addConstraint(Sketcher.Constraint("Vertical", 32, 2, 55, 2))
sketch1.addConstraint(Sketcher.Constraint("Vertical", 30, 2, 57, 2))
sketch1.addConstraint(Sketcher.Constraint("Vertical", 28, 2, 59, 2))
sketch1.addConstraint(Sketcher.Constraint("Vertical", 58, 2, 61, 2))
sketch1.addConstraint(Sketcher.Constraint("Vertical", 25, 2, 62, 2))
sketch1.addConstraint(Sketcher.Constraint("Vertical", 24, 2, 63, 2))
sketch1.addConstraint(Sketcher.Constraint("Vertical", 22, 2, 65, 2))
sketch1.addConstraint(Sketcher.Constraint("Vertical", 64, 2, 67, 2))
sketch1.addConstraint(Sketcher.Constraint("Vertical", 18, 2, 69, 2))
sketch1.addConstraint(Sketcher.Constraint("Vertical", 16, 2, 71, 2))
sketch1.addConstraint(Sketcher.Constraint("Vertical", 15, 2, 72, 2))
sketch1.addConstraint(Sketcher.Constraint("Vertical", 79, 3, 77, 1))
sketch1.addConstraint(Sketcher.Constraint("Vertical", 77, 1, 79, 1))
sketch1.addConstraint(Sketcher.Constraint("Equal", 23, 27))
sketch1.addConstraint(Sketcher.Constraint("Equal", 19, 31))
sketch1.addConstraint(Sketcher.Constraint("Equal", 16, 34))
sketch1.addConstraint(Sketcher.Constraint("Equal", 11, 39))
sketch1.addConstraint(Sketcher.Constraint("Equal", 9, 41))
sketch1.addConstraint(Sketcher.Constraint("Equal", 69, 0))
sketch1.addConstraint(Sketcher.Constraint("Equal", 67, 2))
sketch1.addConstraint(Sketcher.Constraint("Equal", 63, 6))
sketch1.addConstraint(Sketcher.Constraint("Equal", 4, 8))
sketch1.addConstraint(Sketcher.Constraint("Equal", 0, 12))
sketch1.addConstraint(Sketcher.Constraint("Equal", 72, 15))
sketch1.addConstraint(Sketcher.Constraint("Equal", 75, 18))
sketch1.addConstraint(Sketcher.Constraint("Equal", 49, 20))
sketch1.addConstraint(Sketcher.Constraint("Equal", 47, 22))
sketch1.addConstraint(Sketcher.Constraint("Equal", 35, 53))
sketch1.addConstraint(Sketcher.Constraint("Equal", 30, 58))
sketch1.addConstraint(Sketcher.Constraint("Equal", 28, 60))
sketch1.addConstraint(Sketcher.Constraint("Equal", 7, 24))
sketch1.addConstraint(Sketcher.Constraint("DistanceX", 1, 1, 1, 2, 1.0))
sketch1.addConstraint(Sketcher.Constraint("Radius", 76, 1.149999))
sketch1.addConstraint(Sketcher.Constraint("DistanceX", 21, 2, 21, 1, 1.5))
sketch1.addConstraint(Sketcher.Constraint("DistanceX", 3, 1, 3, 2, 2.85))
sketch1.addConstraint(Sketcher.Constraint("DistanceX", -1, 1, 43, 2, 3.001801))
sketch1.addConstraint(Sketcher.Constraint("DistanceX", 13, 1, 13, 2, 2.162307))
sketch1.addConstraint(Sketcher.Constraint("DistanceX", 16, 1, 16, 2, 0.707106))
sketch1.addConstraint(Sketcher.Constraint("DistanceX", 19, 1, 19, 2, 3.130586))
sketch1.addConstraint(Sketcher.Constraint("DistanceX", 25, 1, 25, 2, 1.629773))
sketch1.addConstraint(Sketcher.Constraint("DistanceX", -1, 1, 76, 3, 0.286978))
sketch1.addConstraint(Sketcher.Constraint("DistanceX", 0, 2, -1, 1, 7.213021))
sketch1.addConstraint(Sketcher.Constraint("DistanceY", 5, 2, -1, 1, 0.042959))
sketch1.addConstraint(Sketcher.Constraint("DistanceY", 12, 2, -1, 1, 5.488431))
sketch1.addConstraint(Sketcher.Constraint("DistanceY", 76, 3, -1, 1, 0.857846))
sketch1.setExpression("Constraints[226]", "Params.sketch1_width")
sketch1.setExpression("Constraints[227]", "Params.sketch1_radius")
sketch1.setExpression("Constraints[228]", "Params.sketch1_width2")
sketch1.setExpression("Constraints[229]", "Params.sketch1_width3")
pad1 = body.newObject("PartDesign::Pad", "Pad")
pad1.Profile = sketch1
pad1.setExpression("Length", "Params.pad1_length")

doc.recompute()
